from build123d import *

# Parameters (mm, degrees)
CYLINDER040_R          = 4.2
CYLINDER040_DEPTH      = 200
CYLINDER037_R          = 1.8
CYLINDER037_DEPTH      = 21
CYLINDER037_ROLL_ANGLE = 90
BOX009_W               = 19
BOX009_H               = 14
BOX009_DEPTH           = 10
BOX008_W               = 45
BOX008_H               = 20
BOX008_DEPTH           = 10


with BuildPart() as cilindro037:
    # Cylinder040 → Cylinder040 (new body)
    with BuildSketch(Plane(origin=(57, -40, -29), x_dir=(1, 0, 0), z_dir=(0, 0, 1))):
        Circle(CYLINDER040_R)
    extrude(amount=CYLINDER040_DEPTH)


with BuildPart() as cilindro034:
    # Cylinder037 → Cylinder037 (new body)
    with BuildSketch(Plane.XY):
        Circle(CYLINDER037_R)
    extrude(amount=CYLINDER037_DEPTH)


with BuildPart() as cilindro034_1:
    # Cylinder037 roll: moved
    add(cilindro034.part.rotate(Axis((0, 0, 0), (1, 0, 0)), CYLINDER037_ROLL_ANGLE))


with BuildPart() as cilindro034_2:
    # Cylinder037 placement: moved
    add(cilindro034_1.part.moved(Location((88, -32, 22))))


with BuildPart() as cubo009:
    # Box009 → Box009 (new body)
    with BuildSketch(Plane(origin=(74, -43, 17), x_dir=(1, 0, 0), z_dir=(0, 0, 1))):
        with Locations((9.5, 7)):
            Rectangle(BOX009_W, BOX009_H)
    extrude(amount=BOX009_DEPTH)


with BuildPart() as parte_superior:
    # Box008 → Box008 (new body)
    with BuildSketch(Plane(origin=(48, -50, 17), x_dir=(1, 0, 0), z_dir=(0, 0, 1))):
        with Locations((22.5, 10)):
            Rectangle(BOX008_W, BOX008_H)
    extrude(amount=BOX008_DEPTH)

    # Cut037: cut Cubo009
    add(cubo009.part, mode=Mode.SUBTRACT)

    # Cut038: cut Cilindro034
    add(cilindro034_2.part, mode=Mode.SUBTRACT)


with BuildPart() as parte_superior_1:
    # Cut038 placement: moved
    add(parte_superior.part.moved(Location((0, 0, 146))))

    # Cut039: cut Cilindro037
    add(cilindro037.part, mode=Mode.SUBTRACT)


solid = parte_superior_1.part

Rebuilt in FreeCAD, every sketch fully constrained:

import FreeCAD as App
import Part
import Sketcher
from FreeCAD import Vector
Q = App.Units.Quantity

doc = App.newDocument("Part")
body = doc.addObject("PartDesign::Body", "Body")

# Sketch on XY plane
sketch1 = doc.addObject("Sketcher::SketchObject", "Sketch")
body.addObject(sketch1)
sketch1.AttachmentSupport = (doc.XY_Plane, [""])
sketch1.MapMode = "FlatFace"
sketch1.AttachmentOffset = App.Placement(Vector(0, 0, -29), App.Rotation())
sketch1.addGeometry(Part.Circle(Vector(57, -40, 0), Vector(0, 0, 1), 4.2), False)
sketch1.addConstraint(Sketcher.Constraint("Diameter", 0, Q("8.4 mm")))
sketch1.addConstraint(Sketcher.Constraint("DistanceX", -1, 1, 0, 3, Q("57 mm")))
sketch1.addConstraint(Sketcher.Constraint("DistanceY", 0, 3, -1, 1, Q("40 mm")))
pad1 = doc.addObject("PartDesign::Pad", "Pad")
body.addObject(pad1)
pad1.Profile = sketch1
pad1.Length = 200
body2 = doc.addObject("PartDesign::Body", "Body001")

# Sketch on XY plane
sketch2 = doc.addObject("Sketcher::SketchObject", "Sketch001")
body2.addObject(sketch2)
sketch2.AttachmentSupport = (doc.getObject("XY_Plane001"), [""])
sketch2.MapMode = "FlatFace"
sketch2.addGeometry(Part.Circle(Vector(0, 0, 0), Vector(0, 0, 1), 1.8), False)
sketch2.addConstraint(Sketcher.Constraint("Coincident", 0, 3, -1, 1))
sketch2.addConstraint(Sketcher.Constraint("Diameter", 0, Q("3.6 mm")))
pad2 = doc.addObject("PartDesign::Pad", "Pad001")
body2.addObject(pad2)
pad2.Profile = sketch2
pad2.Length = 21
body3 = doc.addObject("PartDesign::Body", "Body002")
doc.recompute()

body2.Placement = App.Placement(Vector(0, 0, 0), App.Rotation(Vector(1, 0, 0), 90))
boolean = doc.addObject("PartDesign::Boolean", "Boolean")
body3.addObject(boolean)
boolean.Type = "Fuse"
boolean.addObjects([body2])
body4 = doc.addObject("PartDesign::Body", "Body003")
doc.recompute()

body3.Placement = App.Placement(Vector(88, -32, 22), App.Rotation(Vector(0, 0, 1), 0))
boolean2 = doc.addObject("PartDesign::Boolean", "Boolean001")
body4.addObject(boolean2)
boolean2.Type = "Fuse"
boolean2.addObjects([body3])
body5 = doc.addObject("PartDesign::Body", "Body004")

# Sketch on XY plane
sketch3 = doc.addObject("Sketcher::SketchObject", "Sketch002")
body5.addObject(sketch3)
sketch3.AttachmentSupport = (doc.getObject("XY_Plane004"), [""])
sketch3.MapMode = "FlatFace"
sketch3.AttachmentOffset = App.Placement(Vector(0, 0, 17), App.Rotation())
sketch3.addGeometry(Part.LineSegment(Vector(74, -29, 0), Vector(74, -43, 0)), False)
sketch3.addGeometry(Part.LineSegment(Vector(74, -43, 0), Vector(93, -43, 0)), False)
sketch3.addGeometry(Part.LineSegment(Vector(93, -43, 0), Vector(93, -29, 0)), False)
sketch3.addGeometry(Part.LineSegment(Vector(93, -29, 0), Vector(74, -29, 0)), False)
sketch3.addConstraint(Sketcher.Constraint("Coincident", 0, 2, 1, 1))
sketch3.addConstraint(Sketcher.Constraint("Coincident", 1, 2, 2, 1))
sketch3.addConstraint(Sketcher.Constraint("Coincident", 2, 2, 3, 1))
sketch3.addConstraint(Sketcher.Constraint("Coincident", 3, 2, 0, 1))
sketch3.addConstraint(Sketcher.Constraint("Vertical", 0))
sketch3.addConstraint(Sketcher.Constraint("Horizontal", 1))
sketch3.addConstraint(Sketcher.Constraint("Vertical", 2))
sketch3.addConstraint(Sketcher.Constraint("Horizontal", 3))
sketch3.addConstraint(Sketcher.Constraint("DistanceX", 1, 1, 1, 2, Q("19 mm")))
sketch3.addConstraint(Sketcher.Constraint("DistanceY", 0, 2, 0, 1, Q("14 mm")))
sketch3.addConstraint(Sketcher.Constraint("DistanceX", -1, 1, 0, 2, Q("74 mm")))
sketch3.addConstraint(Sketcher.Constraint("DistanceY", 0, 2, -1, 1, Q("43 mm")))
pad3 = doc.addObject("PartDesign::Pad", "Pad002")
body5.addObject(pad3)
pad3.Profile = sketch3
pad3.Length = 10
body6 = doc.addObject("PartDesign::Body", "Body005")

# Sketch on XY plane
sketch4 = doc.addObject("Sketcher::SketchObject", "Sketch003")
body6.addObject(sketch4)
sketch4.AttachmentSupport = (doc.getObject("XY_Plane005"), [""])
sketch4.MapMode = "FlatFace"
sketch4.AttachmentOffset = App.Placement(Vector(0, 0, 17), App.Rotation())
sketch4.addGeometry(Part.LineSegment(Vector(48, -30, 0), Vector(48, -50, 0)), False)
sketch4.addGeometry(Part.LineSegment(Vector(48, -50, 0), Vector(93, -50, 0)), False)
sketch4.addGeometry(Part.LineSegment(Vector(93, -50, 0), Vector(93, -30, 0)), False)
sketch4.addGeometry(Part.LineSegment(Vector(93, -30, 0), Vector(48, -30, 0)), False)
sketch4.addConstraint(Sketcher.Constraint("Coincident", 0, 2, 1, 1))
sketch4.addConstraint(Sketcher.Constraint("Coincident", 1, 2, 2, 1))
sketch4.addConstraint(Sketcher.Constraint("Coincident", 2, 2, 3, 1))
sketch4.addConstraint(Sketcher.Constraint("Coincident", 3, 2, 0, 1))
sketch4.addConstraint(Sketcher.Constraint("Vertical", 0))
sketch4.addConstraint(Sketcher.Constraint("Horizontal", 1))
sketch4.addConstraint(Sketcher.Constraint("Vertical", 2))
sketch4.addConstraint(Sketcher.Constraint("Horizontal", 3))
sketch4.addConstraint(Sketcher.Constraint("DistanceX", 1, 1, 1, 2, Q("45 mm")))
sketch4.addConstraint(Sketcher.Constraint("DistanceY", 0, 2, 0, 1, Q("20 mm")))
sketch4.addConstraint(Sketcher.Constraint("DistanceX", -1, 1, 0, 2, Q("48 mm")))
sketch4.addConstraint(Sketcher.Constraint("DistanceY", 0, 2, -1, 1, Q("50 mm")))
pad4 = doc.addObject("PartDesign::Pad", "Pad003")
body6.addObject(pad4)
pad4.Profile = sketch4
pad4.Length = 10
doc.recompute()

boolean3 = doc.addObject("PartDesign::Boolean", "Boolean002")
body6.addObject(boolean3)
boolean3.Type = "Cut"
boolean3.addObjects([body5])
doc.recompute()

boolean4 = doc.addObject("PartDesign::Boolean", "Boolean003")
body6.addObject(boolean4)
boolean4.Type = "Cut"
boolean4.addObjects([body4])
body7 = doc.addObject("PartDesign::Body", "Body006")
doc.recompute()

body6.Placement = App.Placement(Vector(0, 0, 146), App.Rotation(Vector(0, 0, 1), 0))
boolean5 = doc.addObject("PartDesign::Boolean", "Boolean004")
body7.addObject(boolean5)
boolean5.Type = "Fuse"
boolean5.addObjects([body6])
doc.recompute()

boolean6 = doc.addObject("PartDesign::Boolean", "Boolean005")
body7.addObject(boolean6)
boolean6.Type = "Cut"
boolean6.addObjects([body])

doc.recompute()
